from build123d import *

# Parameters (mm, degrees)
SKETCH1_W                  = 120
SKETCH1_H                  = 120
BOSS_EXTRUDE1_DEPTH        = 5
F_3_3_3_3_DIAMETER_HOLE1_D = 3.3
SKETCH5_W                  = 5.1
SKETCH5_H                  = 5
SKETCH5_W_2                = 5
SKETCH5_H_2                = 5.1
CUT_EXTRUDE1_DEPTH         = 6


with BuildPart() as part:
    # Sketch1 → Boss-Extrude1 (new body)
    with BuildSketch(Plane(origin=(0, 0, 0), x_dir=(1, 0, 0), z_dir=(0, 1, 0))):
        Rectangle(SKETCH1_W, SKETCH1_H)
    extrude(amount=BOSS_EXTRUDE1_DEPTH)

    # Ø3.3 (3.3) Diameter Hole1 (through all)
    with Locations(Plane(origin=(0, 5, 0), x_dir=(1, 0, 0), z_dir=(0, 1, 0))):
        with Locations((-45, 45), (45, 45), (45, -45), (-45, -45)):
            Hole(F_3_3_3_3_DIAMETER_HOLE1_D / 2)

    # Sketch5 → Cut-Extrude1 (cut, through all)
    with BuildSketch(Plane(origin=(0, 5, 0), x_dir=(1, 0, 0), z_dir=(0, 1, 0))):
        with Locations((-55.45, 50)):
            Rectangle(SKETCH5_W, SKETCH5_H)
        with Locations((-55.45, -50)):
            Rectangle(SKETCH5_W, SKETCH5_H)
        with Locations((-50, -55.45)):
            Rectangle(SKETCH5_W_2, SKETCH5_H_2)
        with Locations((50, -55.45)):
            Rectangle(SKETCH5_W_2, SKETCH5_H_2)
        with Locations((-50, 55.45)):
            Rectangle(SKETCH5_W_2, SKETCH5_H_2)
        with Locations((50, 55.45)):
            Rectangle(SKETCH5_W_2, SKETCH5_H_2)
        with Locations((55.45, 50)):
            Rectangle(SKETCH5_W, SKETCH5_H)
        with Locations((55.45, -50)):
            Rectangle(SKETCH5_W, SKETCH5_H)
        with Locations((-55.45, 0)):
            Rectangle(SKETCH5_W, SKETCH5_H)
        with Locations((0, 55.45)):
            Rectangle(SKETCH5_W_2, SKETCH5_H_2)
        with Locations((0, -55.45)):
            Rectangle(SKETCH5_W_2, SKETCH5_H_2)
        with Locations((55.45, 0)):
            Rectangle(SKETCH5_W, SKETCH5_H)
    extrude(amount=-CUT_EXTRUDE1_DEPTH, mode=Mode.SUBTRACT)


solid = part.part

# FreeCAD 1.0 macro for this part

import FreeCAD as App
import Part
import Sketcher

V = App.Vector
Q = App.Units.Quantity

doc = App.newDocument("Part")
body = doc.addObject("PartDesign::Body", "Body")

# Sketch on XZ plane
sketch1 = body.newObject("Sketcher::SketchObject", "Sketch")
sketch1.AttachmentSupport = (doc.getObject("XZ_Plane"), [""])
sketch1.MapMode = "FlatFace"
sketch1.addGeometry([
    Part.LineSegment(V(-60, -60, 0), V(-60, 60, 0)),
    Part.LineSegment(V(-60, 60, 0), V(60, 60, 0)),
    Part.LineSegment(V(60, 60, 0), V(60, -60, 0)),
    Part.LineSegment(V(60, -60, 0), V(-60, -60, 0)),
], False)
sketch1.addConstraint([
    Sketcher.Constraint("Coincident", 0, 2, 1, 1),
    Sketcher.Constraint("Coincident", 1, 2, 2, 1),
    Sketcher.Constraint("Coincident", 2, 2, 3, 1),
    Sketcher.Constraint("Coincident", 3, 2, 0, 1),
    Sketcher.Constraint("Vertical", 0),
    Sketcher.Constraint("Horizontal", 1),
    Sketcher.Constraint("Vertical", 2),
    Sketcher.Constraint("Horizontal", 3),
    Sketcher.Constraint("Symmetric", 0, 2, 2, 2, -1, 1),
    Sketcher.Constraint("Equal", 3, 0),
    Sketcher.Constraint("DistanceX", 1, 1, 1, 2, Q("120 mm")),
])
pad1 = body.newObject("PartDesign::Pad", "Pad")
pad1.Profile = sketch1
pad1.Length = 5
pad1.Reversed = True

# Sketch on XZ plane
sketch2 = body.newObject("Sketcher::SketchObject", "Sketch001")
sketch2.AttachmentSupport = (doc.getObject("XZ_Plane"), [""])
sketch2.MapMode = "FlatFace"
sketch2.AttachmentOffset = App.Placement(V(0, 0, -5), App.Rotation())
sketch2.addGeometry([
    Part.Circle(V(-45, -45, 0), V(0, 0, 1), 1.6),
    Part.Circle(V(45, -45, 0), V(0, 0, 1), 1.6),
    Part.Circle(V(45, 45, 0), V(0, 0, 1), 1.6),
    Part.Circle(V(-45, 45, 0), V(0, 0, 1), 1.6),
], False)
sketch2.addConstraint([
    Sketcher.Constraint("Equal", 0, 1),
    Sketcher.Constraint("Equal", 1, 2),
    Sketcher.Constraint("Equal", 2, 3),
    Sketcher.Constraint("Symmetric", 0, 3, 2, 3, -1, 1),
    Sketcher.Constraint("Symmetric", 1, 3, 3, 3, -1, 1),
    Sketcher.Constraint("Symmetric", 0, 3, 1, 3, -2),
    Sketcher.Constraint("Diameter", 0, Q("3.3 mm")),
    Sketcher.Constraint("DistanceX", 0, 3, -1, 1, Q("45 mm")),
    Sketcher.Constraint("DistanceY", 0, 3, -1, 1, Q("45 mm")),
])
doc.recompute()
hole = body.newObject("PartDesign::Hole", "Hole")
hole.Profile = sketch2
hole.ThreadType = "None"
hole.Diameter = 3.3
hole.DepthType = "ThroughAll"
hole.Reversed = True

# Sketch on XZ plane
sketch3 = body.newObject("Sketcher::SketchObject", "Sketch002")
sketch3.AttachmentSupport = (doc.getObject("XZ_Plane"), [""])
sketch3.MapMode = "FlatFace"
sketch3.AttachmentOffset = App.Placement(V(0, 0, -5), App.Rotation())
sketch3.addGeometry([
    Part.LineSegment(V(-58, -52, 0), V(-58, -48, 0)),  # 0
    Part.LineSegment(V(-58, -48, 0), V(-53, -48, 0)),  # 1
    Part.LineSegment(V(-53, -48, 0), V(-53, -52, 0)),  # 2
    Part.LineSegment(V(-53, -52, 0), V(-58, -52, 0)),  # 3
    Part.LineSegment(V(-58, 48, 0), V(-58, 52, 0)),  # 4
    Part.LineSegment(V(-58, 52, 0), V(-53, 52, 0)),  # 5
    Part.LineSegment(V(-53, 52, 0), V(-53, 48, 0)),  # 6
    Part.LineSegment(V(-53, 48, 0), V(-58, 48, 0)),  # 7
    Part.LineSegment(V(-52, 53, 0), V(-52, 58, 0)),  # 8
    Part.LineSegment(V(-52, 58, 0), V(-48, 58, 0)),  # 9
    Part.LineSegment(V(-48, 58, 0), V(-48, 53, 0)),  # 10
    Part.LineSegment(V(-48, 53, 0), V(-52, 53, 0)),  # 11
    Part.LineSegment(V(48, 53, 0), V(48, 58, 0)),  # 12
    Part.LineSegment(V(48, 58, 0), V(52, 58, 0)),  # 13
    Part.LineSegment(V(52, 58, 0), V(52, 53, 0)),  # 14
    Part.LineSegment(V(52, 53, 0), V(48, 53, 0)),  # 15
    Part.LineSegment(V(-52, -58, 0), V(-52, -53, 0)),  # 16
    Part.LineSegment(V(-52, -53, 0), V(-48, -53, 0)),  # 17
    Part.LineSegment(V(-48, -53, 0), V(-48, -58, 0)),  # 18
    Part.LineSegment(V(-48, -58, 0), V(-52, -58, 0)),  # 19
    Part.LineSegment(V(48, -58, 0), V(48, -53, 0)),  # 20
    Part.LineSegment(V(48, -53, 0), V(52, -53, 0)),  # 21
    Part.LineSegment(V(52, -53, 0), V(52, -58, 0)),  # 22
    Part.LineSegment(V(52, -58, 0), V(48, -58, 0)),  # 23
    Part.LineSegment(V(53, -52, 0), V(53, -48, 0)),  # 24
    Part.LineSegment(V(53, -48, 0), V(58, -48, 0)),  # 25
    Part.LineSegment(V(58, -48, 0), V(58, -52, 0)),  # 26
    Part.LineSegment(V(58, -52, 0), V(53, -52, 0)),  # 27
    Part.LineSegment(V(53, 48, 0), V(53, 52, 0)),  # 28
    Part.LineSegment(V(53, 52, 0), V(58, 52, 0)),  # 29
    Part.LineSegment(V(58, 52, 0), V(58, 48, 0)),  # 30
    Part.LineSegment(V(58, 48, 0), V(53, 48, 0)),  # 31
    Part.LineSegment(V(-58, -2, 0), V(-58, 2, 0)),  # 32
    Part.LineSegment(V(-58, 2, 0), V(-53, 2, 0)),  # 33
    Part.LineSegment(V(-53, 2, 0), V(-53, -2, 0)),  # 34
    Part.LineSegment(V(-53, -2, 0), V(-58, -2, 0)),  # 35
    Part.LineSegment(V(-2, -58, 0), V(-2, -53, 0)),  # 36
    Part.LineSegment(V(-2, -53, 0), V(2, -53, 0)),  # 37
    Part.LineSegment(V(2, -53, 0), V(2, -58, 0)),  # 38
    Part.LineSegment(V(2, -58, 0), V(-2, -58, 0)),  # 39
    Part.LineSegment(V(-2, 53, 0), V(-2, 58, 0)),  # 40
    Part.LineSegment(V(-2, 58, 0), V(2, 58, 0)),  # 41
    Part.LineSegment(V(2, 58, 0), V(2, 53, 0)),  # 42
    Part.LineSegment(V(2, 53, 0), V(-2, 53, 0)),  # 43
    Part.LineSegment(V(53, -2, 0), V(53, 2, 0)),  # 44
    Part.LineSegment(V(53, 2, 0), V(58, 2, 0)),  # 45
    Part.LineSegment(V(58, 2, 0), V(58, -2, 0)),  # 46
    Part.LineSegment(V(58, -2, 0), V(53, -2, 0)),  # 47
], False)
sketch3.addConstraint([
    Sketcher.Constraint("Coincident", 0, 2, 1, 1),
    Sketcher.Constraint("Coincident", 1, 2, 2, 1),
    Sketcher.Constraint("Coincident", 2, 2, 3, 1),
    Sketcher.Constraint("Coincident", 3, 2, 0, 1),
    Sketcher.Constraint("Coincident", 4, 2, 5, 1),
    Sketcher.Constraint("Coincident", 5, 2, 6, 1),
    Sketcher.Constraint("Coincident", 6, 2, 7, 1),
    Sketcher.Constraint("Coincident", 7, 2, 4, 1),
    Sketcher.Constraint("Coincident", 8, 2, 9, 1),
    Sketcher.Constraint("Coincident", 9, 2, 10, 1),
    Sketcher.Constraint("Coincident", 10, 2, 11, 1),
    Sketcher.Constraint("Coincident", 11, 2, 8, 1),
    Sketcher.Constraint("Coincident", 12, 2, 13, 1),
    Sketcher.Constraint("Coincident", 13, 2, 14, 1),
    Sketcher.Constraint("Coincident", 14, 2, 15, 1),
    Sketcher.Constraint("Coincident", 15, 2, 12, 1),
    Sketcher.Constraint("Coincident", 16, 2, 17, 1),
    Sketcher.Constraint("Coincident", 17, 2, 18, 1),
    Sketcher.Constraint("Coincident", 18, 2, 19, 1),
    Sketcher.Constraint("Coincident", 19, 2, 16, 1),
    Sketcher.Constraint("Coincident", 20, 2, 21, 1),
    Sketcher.Constraint("Coincident", 21, 2, 22, 1),
    Sketcher.Constraint("Coincident", 22, 2, 23, 1),
    Sketcher.Constraint("Coincident", 23, 2, 20, 1),
    Sketcher.Constraint("Coincident", 24, 2, 25, 1),
    Sketcher.Constraint("Coincident", 25, 2, 26, 1),
    Sketcher.Constraint("Coincident", 26, 2, 27, 1),
    Sketcher.Constraint("Coincident", 27, 2, 24, 1),
    Sketcher.Constraint("Coincident", 28, 2, 29, 1),
    Sketcher.Constraint("Coincident", 29, 2, 30, 1),
    Sketcher.Constraint("Coincident", 30, 2, 31, 1),
    Sketcher.Constraint("Coincident", 31, 2, 28, 1),
    Sketcher.Constraint("Coincident", 32, 2, 33, 1),
    Sketcher.Constraint("Coincident", 33, 2, 34, 1),
    Sketcher.Constraint("Coincident", 34, 2, 35, 1),
    Sketcher.Constraint("Coincident", 35, 2, 32, 1),
    Sketcher.Constraint("Coincident", 36, 2, 37, 1),
    Sketcher.Constraint("Coincident", 37, 2, 38, 1),
    Sketcher.Constraint("Coincident", 38, 2, 39, 1),
    Sketcher.Constraint("Coincident", 39, 2, 36, 1),
    Sketcher.Constraint("Coincident", 40, 2, 41, 1),
    Sketcher.Constraint("Coincident", 41, 2, 42, 1),
    Sketcher.Constraint("Coincident", 42, 2, 43, 1),
    Sketcher.Constraint("Coincident", 43, 2, 40, 1),
    Sketcher.Constraint("Coincident", 44, 2, 45, 1),
    Sketcher.Constraint("Coincident", 45, 2, 46, 1),
    Sketcher.Constraint("Coincident", 46, 2, 47, 1),
    Sketcher.Constraint("Coincident", 47, 2, 44, 1),
    Sketcher.Constraint("Vertical", 0),
    Sketcher.Constraint("Horizontal", 1),
    Sketcher.Constraint("Vertical", 2),
    Sketcher.Constraint("Horizontal", 3),
    Sketcher.Constraint("Vertical", 4),
    Sketcher.Constraint("Horizontal", 5),
    Sketcher.Constraint("Vertical", 6),
    Sketcher.Constraint("Horizontal", 7),
    Sketcher.Constraint("Vertical", 8),
    Sketcher.Constraint("Horizontal", 9),
    Sketcher.Constraint("Vertical", 10),
    Sketcher.Constraint("Horizontal", 11),
    Sketcher.Constraint("Vertical", 12),
    Sketcher.Constraint("Horizontal", 13),
    Sketcher.Constraint("Vertical", 14),
    Sketcher.Constraint("Horizontal", 15),
    Sketcher.Constraint("Vertical", 16),
    Sketcher.Constraint("Horizontal", 17),
    Sketcher.Constraint("Vertical", 18),
    Sketcher.Constraint("Horizontal", 19),
    Sketcher.Constraint("Vertical", 20),
    Sketcher.Constraint("Horizontal", 21),
    Sketcher.Constraint("Vertical", 22),
    Sketcher.Constraint("Horizontal", 23),
    Sketcher.Constraint("Vertical", 24),
    Sketcher.Constraint("Horizontal", 25),
    Sketcher.Constraint("Vertical", 26),
    Sketcher.Constraint("Horizontal", 27),
    Sketcher.Constraint("Vertical", 28),
    Sketcher.Constraint("Horizontal", 29),
    Sketcher.Constraint("Vertical", 30),
    Sketcher.Constraint("Horizontal", 31),
    Sketcher.Constraint("Vertical", 32),
    Sketcher.Constraint("Horizontal", 33),
    Sketcher.Constraint("Vertical", 34),
    Sketcher.Constraint("Horizontal", 35),
    Sketcher.Constraint("Vertical", 36),
    Sketcher.Constraint("Horizontal", 37),
    Sketcher.Constraint("Vertical", 38),
    Sketcher.Constraint("Horizontal", 39),
    Sketcher.Constraint("Vertical", 40),
    Sketcher.Constraint("Horizontal", 41),
    Sketcher.Constraint("Vertical", 42),
    Sketcher.Constraint("Horizontal", 43),
    Sketcher.Constraint("Vertical", 44),
    Sketcher.Constraint("Horizontal", 45),
    Sketcher.Constraint("Vertical", 46),
    Sketcher.Constraint("Horizontal", 47),
    Sketcher.Constraint("Symmetric", 14, 2, 16, 2, -1, 1),
    Sketcher.Constraint("Symmetric", 12, 2, 18, 2, -1, 1),
    Sketcher.Constraint("Symmetric", 10, 2, 20, 2, -1, 1),
    Sketcher.Constraint("Symmetric", 8, 2, 22, 2, -1, 1),
    Sketcher.Constraint("Symmetric", 6, 2, 24, 2, -1, 1),
    Sketcher.Constraint("Symmetric", 4, 2, 26, 2, -1, 1),
    Sketcher.Constraint("Symmetric", 2, 2, 28, 2, -1, 1),
    Sketcher.Constraint("Symmetric", 0, 2, 30, 2, -1, 1),
    Sketcher.Constraint("Symmetric", 38, 2, 40, 2, -1, 1),
    Sketcher.Constraint("Symmetric", 36, 2, 42, 2, -1, 1),
    Sketcher.Constraint("Symmetric", 34, 2, 44, 2, -1, 1),
    Sketcher.Constraint("Symmetric", 32, 2, 46, 2, -1, 1),
    Sketcher.Constraint("Symmetric", 9, 2, 12, 2, -2),
    Sketcher.Constraint("Symmetric", 11, 2, 14, 2, -2),
    Sketcher.Constraint("Symmetric", 1, 2, 24, 2, -2),
    Sketcher.Constraint("Symmetric", 3, 2, 26, 2, -2),
    Sketcher.Constraint("Horizontal", 21, 2, 36, 2),
    Sketcher.Constraint("Horizontal", 23, 2, 38, 2),
    Sketcher.Constraint("Horizontal", 33, 2, 44, 2),
    Sketcher.Constraint("Vertical", 7, 2, 32, 2),
    Sketcher.Constraint("Vertical", 6, 2, 33, 2),
    Sketcher.Constraint("Vertical", 39, 2, 40, 2),
    Sketcher.Constraint("Equal", 23, 37),
    Sketcher.Constraint("Equal", 43, 0),
    Sketcher.Constraint("Equal", 47, 8),
    Sketcher.Constraint("Equal", 30, 32),
    Sketcher.Constraint("DistanceX", 9, 1, 9, 2, Q("5 mm")),
    Sketcher.Constraint("DistanceX", 1, 1, 1, 2, Q("5.1 mm")),
    Sketcher.Constraint("DistanceX", 0, 2, -1, 1, Q("58 mm")),
    Sketcher.Constraint("DistanceY", -1, 1, 8, 2, Q("58 mm")),
    Sketcher.Constraint("DistanceY", 0, 2, 4, 2, Q("100 mm")),
    Sketcher.Constraint("DistanceX", 9, 2, 12, 2, Q("95 mm")),
])
pocket1 = body.newObject("PartDesign::Pocket", "Pocket")
pocket1.Profile = sketch3
pocket1.Type = "ThroughAll"
pocket1.Reversed = True

doc.recompute()
